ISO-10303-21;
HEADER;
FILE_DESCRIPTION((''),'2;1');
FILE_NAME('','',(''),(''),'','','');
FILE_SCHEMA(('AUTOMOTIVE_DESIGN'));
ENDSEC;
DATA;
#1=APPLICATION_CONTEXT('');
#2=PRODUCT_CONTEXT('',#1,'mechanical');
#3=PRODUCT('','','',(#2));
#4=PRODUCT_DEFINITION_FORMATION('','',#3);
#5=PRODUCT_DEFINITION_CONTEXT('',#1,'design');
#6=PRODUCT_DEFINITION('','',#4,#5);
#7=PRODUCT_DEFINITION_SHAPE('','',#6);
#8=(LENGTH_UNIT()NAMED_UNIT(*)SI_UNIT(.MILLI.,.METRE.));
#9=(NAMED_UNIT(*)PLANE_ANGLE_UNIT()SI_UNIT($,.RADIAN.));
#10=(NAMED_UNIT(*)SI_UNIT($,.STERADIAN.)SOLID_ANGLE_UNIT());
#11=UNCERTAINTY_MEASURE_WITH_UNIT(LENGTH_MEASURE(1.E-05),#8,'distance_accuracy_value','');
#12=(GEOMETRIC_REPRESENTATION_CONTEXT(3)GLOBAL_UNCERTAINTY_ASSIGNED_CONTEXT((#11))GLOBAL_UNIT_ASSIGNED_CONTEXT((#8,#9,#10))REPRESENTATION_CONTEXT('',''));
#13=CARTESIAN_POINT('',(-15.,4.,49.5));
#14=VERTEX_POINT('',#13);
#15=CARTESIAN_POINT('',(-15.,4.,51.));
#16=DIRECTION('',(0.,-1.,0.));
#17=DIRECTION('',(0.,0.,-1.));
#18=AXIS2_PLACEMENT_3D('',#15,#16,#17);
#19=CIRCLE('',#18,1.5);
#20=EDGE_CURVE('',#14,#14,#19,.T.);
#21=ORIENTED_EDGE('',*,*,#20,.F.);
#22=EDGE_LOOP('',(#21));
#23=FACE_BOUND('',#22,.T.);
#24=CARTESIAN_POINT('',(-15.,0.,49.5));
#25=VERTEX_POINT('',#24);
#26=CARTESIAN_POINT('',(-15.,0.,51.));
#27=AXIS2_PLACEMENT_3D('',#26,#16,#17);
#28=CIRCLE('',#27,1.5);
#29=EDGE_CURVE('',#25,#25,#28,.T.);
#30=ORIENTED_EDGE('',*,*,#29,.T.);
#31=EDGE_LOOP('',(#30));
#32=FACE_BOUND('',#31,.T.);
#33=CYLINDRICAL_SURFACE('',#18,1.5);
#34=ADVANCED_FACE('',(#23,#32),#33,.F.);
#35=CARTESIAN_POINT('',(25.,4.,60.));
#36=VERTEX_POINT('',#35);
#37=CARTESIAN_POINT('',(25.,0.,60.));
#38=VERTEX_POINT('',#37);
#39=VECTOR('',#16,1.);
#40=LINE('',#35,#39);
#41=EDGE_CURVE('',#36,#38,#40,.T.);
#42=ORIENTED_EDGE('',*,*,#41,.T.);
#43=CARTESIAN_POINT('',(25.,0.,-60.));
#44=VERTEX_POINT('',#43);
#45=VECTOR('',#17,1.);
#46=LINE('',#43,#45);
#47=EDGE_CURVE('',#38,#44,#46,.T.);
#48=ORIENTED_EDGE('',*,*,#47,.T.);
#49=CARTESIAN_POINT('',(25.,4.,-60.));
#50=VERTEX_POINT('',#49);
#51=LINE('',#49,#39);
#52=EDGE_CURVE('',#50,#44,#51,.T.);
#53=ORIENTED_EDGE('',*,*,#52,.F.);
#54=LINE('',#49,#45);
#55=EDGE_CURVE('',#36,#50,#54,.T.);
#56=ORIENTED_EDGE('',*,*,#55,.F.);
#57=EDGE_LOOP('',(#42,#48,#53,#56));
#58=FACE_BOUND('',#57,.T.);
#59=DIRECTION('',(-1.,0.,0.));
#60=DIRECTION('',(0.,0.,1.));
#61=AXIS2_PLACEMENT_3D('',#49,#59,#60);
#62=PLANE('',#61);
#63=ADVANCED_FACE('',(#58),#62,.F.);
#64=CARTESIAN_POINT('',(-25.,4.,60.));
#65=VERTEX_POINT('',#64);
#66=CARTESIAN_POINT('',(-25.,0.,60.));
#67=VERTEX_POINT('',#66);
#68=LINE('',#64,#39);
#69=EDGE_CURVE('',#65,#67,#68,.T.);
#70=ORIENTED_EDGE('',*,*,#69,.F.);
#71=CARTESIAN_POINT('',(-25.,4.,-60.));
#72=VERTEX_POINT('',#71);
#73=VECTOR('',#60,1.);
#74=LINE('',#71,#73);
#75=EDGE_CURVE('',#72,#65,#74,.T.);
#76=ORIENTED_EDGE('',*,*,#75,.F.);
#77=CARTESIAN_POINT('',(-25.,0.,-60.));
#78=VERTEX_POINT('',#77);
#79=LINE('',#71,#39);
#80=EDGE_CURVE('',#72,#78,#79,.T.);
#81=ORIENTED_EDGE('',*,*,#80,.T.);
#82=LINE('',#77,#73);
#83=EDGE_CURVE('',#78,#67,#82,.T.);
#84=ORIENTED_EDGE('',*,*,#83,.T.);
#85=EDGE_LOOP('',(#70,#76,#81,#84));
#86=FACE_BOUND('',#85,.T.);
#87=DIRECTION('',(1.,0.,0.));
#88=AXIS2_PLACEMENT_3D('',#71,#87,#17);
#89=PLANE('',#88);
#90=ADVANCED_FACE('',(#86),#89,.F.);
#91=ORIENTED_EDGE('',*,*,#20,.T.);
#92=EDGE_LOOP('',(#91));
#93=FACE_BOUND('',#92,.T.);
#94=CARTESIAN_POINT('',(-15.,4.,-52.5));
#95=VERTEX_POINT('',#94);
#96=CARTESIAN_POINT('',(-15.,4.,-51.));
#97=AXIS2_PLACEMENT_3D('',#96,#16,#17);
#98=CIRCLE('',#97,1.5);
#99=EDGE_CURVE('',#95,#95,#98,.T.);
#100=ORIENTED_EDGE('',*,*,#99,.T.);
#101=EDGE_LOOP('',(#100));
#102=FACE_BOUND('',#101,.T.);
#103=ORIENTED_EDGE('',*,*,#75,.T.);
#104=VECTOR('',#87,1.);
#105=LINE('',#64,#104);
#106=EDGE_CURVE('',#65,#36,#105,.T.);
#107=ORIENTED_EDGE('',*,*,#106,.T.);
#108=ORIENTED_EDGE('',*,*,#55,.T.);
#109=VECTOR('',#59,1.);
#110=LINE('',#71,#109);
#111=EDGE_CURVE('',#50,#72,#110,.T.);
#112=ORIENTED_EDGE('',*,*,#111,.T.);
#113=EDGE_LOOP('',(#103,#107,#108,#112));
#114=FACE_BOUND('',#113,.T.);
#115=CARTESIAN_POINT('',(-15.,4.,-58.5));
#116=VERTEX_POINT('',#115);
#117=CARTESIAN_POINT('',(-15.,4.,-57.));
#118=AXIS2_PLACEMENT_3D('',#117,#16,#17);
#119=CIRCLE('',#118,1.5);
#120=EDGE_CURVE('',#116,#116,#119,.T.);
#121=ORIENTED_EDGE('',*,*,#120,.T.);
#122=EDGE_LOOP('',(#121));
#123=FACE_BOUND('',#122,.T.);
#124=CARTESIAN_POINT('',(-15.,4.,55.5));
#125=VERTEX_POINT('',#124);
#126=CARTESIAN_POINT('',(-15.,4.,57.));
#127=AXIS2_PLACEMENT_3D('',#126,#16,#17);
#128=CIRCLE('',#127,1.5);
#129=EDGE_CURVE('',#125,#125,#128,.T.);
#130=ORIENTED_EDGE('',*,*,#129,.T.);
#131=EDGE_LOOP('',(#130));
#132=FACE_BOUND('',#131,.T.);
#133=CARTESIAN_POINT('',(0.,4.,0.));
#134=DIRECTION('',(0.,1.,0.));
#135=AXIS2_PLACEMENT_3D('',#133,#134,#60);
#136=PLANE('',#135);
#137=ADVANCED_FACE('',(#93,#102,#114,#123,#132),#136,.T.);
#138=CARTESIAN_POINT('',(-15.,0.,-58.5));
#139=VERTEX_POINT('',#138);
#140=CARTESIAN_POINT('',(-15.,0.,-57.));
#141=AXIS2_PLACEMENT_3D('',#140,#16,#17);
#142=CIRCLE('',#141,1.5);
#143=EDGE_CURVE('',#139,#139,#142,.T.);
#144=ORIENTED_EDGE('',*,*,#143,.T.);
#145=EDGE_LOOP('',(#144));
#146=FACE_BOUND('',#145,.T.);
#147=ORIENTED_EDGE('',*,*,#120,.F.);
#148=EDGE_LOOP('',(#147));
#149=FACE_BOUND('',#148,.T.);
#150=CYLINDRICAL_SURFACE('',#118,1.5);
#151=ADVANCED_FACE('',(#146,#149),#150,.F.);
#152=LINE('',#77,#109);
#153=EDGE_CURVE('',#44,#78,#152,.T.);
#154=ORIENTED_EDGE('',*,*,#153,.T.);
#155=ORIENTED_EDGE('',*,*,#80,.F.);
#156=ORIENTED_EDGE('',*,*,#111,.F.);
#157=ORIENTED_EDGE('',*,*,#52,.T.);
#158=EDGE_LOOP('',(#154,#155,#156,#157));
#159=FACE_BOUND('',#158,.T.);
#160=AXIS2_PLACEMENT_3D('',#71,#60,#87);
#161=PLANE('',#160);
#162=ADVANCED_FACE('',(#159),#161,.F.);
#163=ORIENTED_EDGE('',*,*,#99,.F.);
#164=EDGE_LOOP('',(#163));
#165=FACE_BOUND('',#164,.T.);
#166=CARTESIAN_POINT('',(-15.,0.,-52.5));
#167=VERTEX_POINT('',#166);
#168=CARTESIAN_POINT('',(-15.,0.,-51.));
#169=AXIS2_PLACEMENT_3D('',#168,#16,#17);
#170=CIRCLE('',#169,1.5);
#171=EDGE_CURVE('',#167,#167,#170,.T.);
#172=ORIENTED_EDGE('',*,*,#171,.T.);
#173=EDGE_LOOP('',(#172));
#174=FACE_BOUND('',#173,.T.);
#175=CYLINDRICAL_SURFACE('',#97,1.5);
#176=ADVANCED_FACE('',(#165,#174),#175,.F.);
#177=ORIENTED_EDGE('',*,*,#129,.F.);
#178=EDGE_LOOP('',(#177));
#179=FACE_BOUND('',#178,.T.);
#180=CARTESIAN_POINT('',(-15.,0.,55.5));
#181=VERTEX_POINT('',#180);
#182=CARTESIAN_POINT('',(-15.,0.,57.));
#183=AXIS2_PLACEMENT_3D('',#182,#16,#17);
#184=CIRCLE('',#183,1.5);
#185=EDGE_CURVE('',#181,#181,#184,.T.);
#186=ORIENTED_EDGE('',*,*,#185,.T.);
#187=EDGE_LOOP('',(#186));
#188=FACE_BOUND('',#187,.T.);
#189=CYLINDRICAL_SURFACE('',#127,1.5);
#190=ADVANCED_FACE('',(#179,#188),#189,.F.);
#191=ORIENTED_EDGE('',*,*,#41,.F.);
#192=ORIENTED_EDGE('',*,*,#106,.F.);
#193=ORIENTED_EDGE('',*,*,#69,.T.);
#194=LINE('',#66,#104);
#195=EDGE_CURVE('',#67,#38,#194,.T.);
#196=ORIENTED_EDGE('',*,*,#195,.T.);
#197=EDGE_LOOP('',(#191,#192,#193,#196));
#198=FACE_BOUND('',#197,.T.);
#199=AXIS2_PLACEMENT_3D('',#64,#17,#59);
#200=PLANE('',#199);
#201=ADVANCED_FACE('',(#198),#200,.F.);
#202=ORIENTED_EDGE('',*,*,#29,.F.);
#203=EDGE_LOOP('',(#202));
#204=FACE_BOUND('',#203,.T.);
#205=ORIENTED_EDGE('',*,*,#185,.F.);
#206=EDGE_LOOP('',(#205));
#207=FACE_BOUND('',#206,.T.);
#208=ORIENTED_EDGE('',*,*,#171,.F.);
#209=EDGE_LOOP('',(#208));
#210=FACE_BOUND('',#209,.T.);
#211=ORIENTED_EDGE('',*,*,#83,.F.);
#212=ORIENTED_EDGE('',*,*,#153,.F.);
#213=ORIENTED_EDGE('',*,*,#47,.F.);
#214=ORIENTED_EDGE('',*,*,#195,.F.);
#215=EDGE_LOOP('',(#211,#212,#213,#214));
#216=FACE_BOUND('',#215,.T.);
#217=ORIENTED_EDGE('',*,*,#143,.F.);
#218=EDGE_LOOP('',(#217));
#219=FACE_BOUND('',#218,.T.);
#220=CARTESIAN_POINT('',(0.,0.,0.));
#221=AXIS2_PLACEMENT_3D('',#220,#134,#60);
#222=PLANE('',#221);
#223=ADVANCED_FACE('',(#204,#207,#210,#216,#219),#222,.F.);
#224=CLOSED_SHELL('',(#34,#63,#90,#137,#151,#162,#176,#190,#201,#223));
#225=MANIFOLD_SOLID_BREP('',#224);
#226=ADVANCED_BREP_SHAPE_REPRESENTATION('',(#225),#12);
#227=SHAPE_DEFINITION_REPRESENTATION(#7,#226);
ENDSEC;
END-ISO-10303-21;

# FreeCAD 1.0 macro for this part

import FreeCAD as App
import Part
import Sketcher

doc = App.newDocument("Part")
body = doc.addObject("PartDesign::Body", "Body")

# Sketch on XZ plane
sketch1 = body.newObject("Sketcher::SketchObject", "Sketch")
sketch1.AttachmentSupport = (doc.getObject("XZ_Plane"), [""])
sketch1.MapMode = "FlatFace"
sketch1.addGeometry(Part.LineSegment(App.Vector(-25, -60, 0), App.Vector(-25, 60, 0)), False)
sketch1.addGeometry(Part.LineSegment(App.Vector(-25, 60, 0), App.Vector(25, 60, 0)), False)
sketch1.addGeometry(Part.LineSegment(App.Vector(25, 60, 0), App.Vector(25, -60, 0)), False)
sketch1.addGeometry(Part.LineSegment(App.Vector(25, -60, 0), App.Vector(-25, -60, 0)), False)
sketch1.addConstraint(Sketcher.Constraint("Coincident", 0, 2, 1, 1))
sketch1.addConstraint(Sketcher.Constraint("Coincident", 1, 2, 2, 1))
sketch1.addConstraint(Sketcher.Constraint("Coincident", 2, 2, 3, 1))
sketch1.addConstraint(Sketcher.Constraint("Coincident", 3, 2, 0, 1))
sketch1.addConstraint(Sketcher.Constraint("Vertical", 0))
sketch1.addConstraint(Sketcher.Constraint("Horizontal", 1))
sketch1.addConstraint(Sketcher.Constraint("Vertical", 2))
sketch1.addConstraint(Sketcher.Constraint("Horizontal", 3))
sketch1.addConstraint(Sketcher.Constraint("Symmetric", 0, 2, 2, 2, -1, 1))
sketch1.addConstraint(Sketcher.Constraint("DistanceX", 1, 1, 1, 2, 50.0))
sketch1.addConstraint(Sketcher.Constraint("DistanceY", 0, 1, 0, 2, 120.0))
pad1 = body.newObject("PartDesign::Pad", "Pad")
pad1.Profile = sketch1
pad1.Length = 4
pad1.Reversed = True

# Sketch on XZ plane
sketch2 = body.newObject("Sketcher::SketchObject", "Sketch001")
sketch2.AttachmentSupport = (doc.getObject("XZ_Plane"), [""])
sketch2.MapMode = "FlatFace"
sketch2.addGeometry(Part.Circle(App.Vector(-15, -57, 0), App.Vector(0, 0, 1), 1.5), False)
sketch2.addGeometry(Part.Circle(App.Vector(-15, -51, 0), App.Vector(0, 0, 1), 1.5), False)
sketch2.addGeometry(Part.Circle(App.Vector(-15, 51, 0), App.Vector(0, 0, 1), 1.5), False)
sketch2.addGeometry(Part.Circle(App.Vector(-15, 57, 0), App.Vector(0, 0, 1), 1.5), False)
sketch2.addConstraint(Sketcher.Constraint("Equal", 0, 1))
sketch2.addConstraint(Sketcher.Constraint("Equal", 1, 2))
sketch2.addConstraint(Sketcher.Constraint("Equal", 2, 3))
sketch2.addConstraint(Sketcher.Constraint("Symmetric", 1, 3, 2, 3, -1))
sketch2.addConstraint(Sketcher.Constraint("Symmetric", 0, 3, 3, 3, -1))
sketch2.addConstraint(Sketcher.Constraint("Vertical", 0, 3, 1, 3))
sketch2.addConstraint(Sketcher.Constraint("Diameter", 0, 3.0))
sketch2.addConstraint(Sketcher.Constraint("DistanceX", 0, 3, -1, 1, 15.0))
sketch2.addConstraint(Sketcher.Constraint("DistanceY", 0, 3, -1, 1, 57.0))
sketch2.addConstraint(Sketcher.Constraint("DistanceY", 1, 3, -1, 1, 51.0))
pocket1 = body.newObject("PartDesign::Pocket", "Pocket")
pocket1.Profile = sketch2
pocket1.Type = "ThroughAll"

doc.recompute()
